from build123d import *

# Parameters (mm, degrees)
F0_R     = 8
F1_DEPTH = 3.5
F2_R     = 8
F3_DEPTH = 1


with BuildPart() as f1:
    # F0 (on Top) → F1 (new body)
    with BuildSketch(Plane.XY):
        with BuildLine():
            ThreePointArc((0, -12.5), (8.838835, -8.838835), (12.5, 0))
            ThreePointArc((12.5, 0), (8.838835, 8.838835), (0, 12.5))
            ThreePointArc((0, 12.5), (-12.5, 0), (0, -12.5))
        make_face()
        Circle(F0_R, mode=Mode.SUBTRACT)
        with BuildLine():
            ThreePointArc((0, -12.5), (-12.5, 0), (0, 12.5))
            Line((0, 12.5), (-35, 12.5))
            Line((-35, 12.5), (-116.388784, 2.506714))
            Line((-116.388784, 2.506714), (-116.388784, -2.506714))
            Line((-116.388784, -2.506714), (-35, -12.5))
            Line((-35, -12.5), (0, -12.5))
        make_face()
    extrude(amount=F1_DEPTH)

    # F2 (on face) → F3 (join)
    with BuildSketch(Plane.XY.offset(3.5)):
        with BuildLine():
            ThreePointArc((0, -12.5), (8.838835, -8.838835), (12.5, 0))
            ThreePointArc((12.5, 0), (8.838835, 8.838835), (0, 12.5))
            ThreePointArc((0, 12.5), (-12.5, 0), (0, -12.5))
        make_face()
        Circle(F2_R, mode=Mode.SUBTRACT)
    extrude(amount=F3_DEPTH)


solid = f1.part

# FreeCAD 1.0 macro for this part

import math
import FreeCAD as App
import Part
import Sketcher

V = App.Vector
Q = App.Units.Quantity

doc = App.newDocument("Part")
body = doc.addObject("PartDesign::Body", "Body")

sketch1 = body.newObject("Sketcher::SketchObject", "Sketch")
sketch1.AttachmentSupport = (doc.getObject("XY_Plane"), [""])
sketch1.MapMode = "FlatFace"
sketch1.addGeometry([
    Part.ArcOfCircle(Part.Circle(V(0.000001, -0.000001, 0), V(0, 0, 1), 12.499999), math.radians(-90.000004), math.radians(0.000004)),
    Part.ArcOfCircle(Part.Circle(V(0.000001, 0.000001, 0), V(0, 0, 1), 12.499999), math.radians(-0.000004), math.radians(90.000004)),
    Part.LineSegment(V(0, 12.5, 0), V(-35, 12.5, 0)),
    Part.LineSegment(V(-35, 12.5, 0), V(-116.388784, 2.506714, 0)),
    Part.LineSegment(V(-116.388784, 2.506714, 0), V(-116.388784, -2.506714, 0)),
    Part.LineSegment(V(-116.388784, -2.506714, 0), V(-35, -12.5, 0)),
    Part.LineSegment(V(-35, -12.5, 0), V(0, -12.5, 0)),
    Part.Circle(V(0, 0, 0), V(0, 0, 1), 8),
], False)
sketch1.addConstraint([
    Sketcher.Constraint("Tangent", 0, 2, 1, 1),
    Sketcher.Constraint("Tangent", 1, 2, 2, 1),
    Sketcher.Constraint("Coincident", 2, 2, 3, 1),
    Sketcher.Constraint("Coincident", 3, 2, 4, 1),
    Sketcher.Constraint("Coincident", 4, 2, 5, 1),
    Sketcher.Constraint("Coincident", 5, 2, 6, 1),
    Sketcher.Constraint("Tangent", 6, 2, 0, 1),
    Sketcher.Constraint("Horizontal", 2),
    Sketcher.Constraint("Vertical", 4),
    Sketcher.Constraint("Horizontal", 6),
    Sketcher.Constraint("Coincident", 0, 3, -1, 1),
    Sketcher.Constraint("Coincident", 7, 3, -1, 1),
    Sketcher.Constraint("Equal", 0, 1),
    Sketcher.Constraint("PointOnObject", 0, 2, -1),
    Sketcher.Constraint("Vertical", 2, 2, 5, 2),
    Sketcher.Constraint("Equal", 3, 5),
    Sketcher.Constraint("Diameter", 7, 16.0),
    Sketcher.Constraint("Radius", 0, 12.499999),
    Sketcher.Constraint("DistanceX", 2, 2, 2, 1, 35.0),
    Sketcher.Constraint("Angle", 3, Q("-173 deg")),
    Sketcher.Constraint("Distance", 3, 82.0),
])
pad1 = body.newObject("PartDesign::Pad", "Pad")
pad1.Profile = sketch1
pad1.Length = 3.5

sketch2 = body.newObject("Sketcher::SketchObject", "Sketch001")
sketch2.AttachmentSupport = (doc.getObject("XY_Plane"), [""])
sketch2.MapMode = "FlatFace"
sketch2.AttachmentOffset = App.Placement(V(0, 0, 3.5), App.Rotation())
sketch2.addGeometry([
    Part.ArcOfCircle(Part.Circle(V(0.000001, -0.000001, 0), V(0, 0, 1), 12.499999), math.radians(-90.000004), math.radians(0.000004)),
    Part.ArcOfCircle(Part.Circle(V(0.000001, 0.000001, 0), V(0, 0, 1), 12.499999), math.radians(-0.000004), math.radians(90.000004)),
    Part.ArcOfCircle(Part.Circle(V(0, 0, 0), V(0, 0, 1), 12.5), math.radians(90), math.radians(270)),
    Part.Circle(V(0, 0, 0), V(0, 0, 1), 8),
], False)
sketch2.addConstraint([
    Sketcher.Constraint("Tangent", 0, 2, 1, 1),
    Sketcher.Constraint("Tangent", 1, 2, 2, 1),
    Sketcher.Constraint("Tangent", 2, 2, 0, 1),
    Sketcher.Constraint("Coincident", 0, 3, -1, 1),
    Sketcher.Constraint("Coincident", 3, 3, -1, 1),
    Sketcher.Constraint("PointOnObject", 0, 2, -1),
    Sketcher.Constraint("PointOnObject", 1, 2, -2),
    Sketcher.Constraint("PointOnObject", 2, 2, -2),
    Sketcher.Constraint("Diameter", 3, 16.0),
    Sketcher.Constraint("Radius", 0, 12.499999),
])
pad2 = body.newObject("PartDesign::Pad", "Pad001")
pad2.Profile = sketch2
pad2.Length = 1

doc.recompute()
